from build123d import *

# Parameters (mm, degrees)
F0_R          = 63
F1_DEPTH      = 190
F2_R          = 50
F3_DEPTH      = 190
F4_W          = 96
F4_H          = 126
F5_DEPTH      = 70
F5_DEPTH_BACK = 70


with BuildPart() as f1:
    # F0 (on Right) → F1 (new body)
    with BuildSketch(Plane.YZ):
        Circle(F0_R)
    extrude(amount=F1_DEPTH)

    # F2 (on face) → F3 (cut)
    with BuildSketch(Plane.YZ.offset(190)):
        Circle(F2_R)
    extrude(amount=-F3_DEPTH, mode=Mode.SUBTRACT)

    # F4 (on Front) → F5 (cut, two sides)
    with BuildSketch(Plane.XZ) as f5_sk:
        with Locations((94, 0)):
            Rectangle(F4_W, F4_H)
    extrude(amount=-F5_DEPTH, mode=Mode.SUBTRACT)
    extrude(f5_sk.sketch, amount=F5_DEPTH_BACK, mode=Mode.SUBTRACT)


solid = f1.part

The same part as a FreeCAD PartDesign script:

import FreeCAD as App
import Part
import Sketcher
Q = App.Units.Quantity


def add_polygon(sketch, points):
    """Adds a closed chain of lines whose ends are joined by coincident constraints."""
    first, n = sketch.GeometryCount, len(points)
    for a, b in zip(points, points[1:] + points[:1]):
        sketch.addGeometry(Part.LineSegment(App.Vector(*a, 0), App.Vector(*b, 0)), False)
    for i in range(n):
        sketch.addConstraint(Sketcher.Constraint("Coincident", first + i, 2, first + (i + 1) % n, 1))

doc = App.newDocument("Part")
body = doc.addObject("PartDesign::Body", "Body")
body.AllowCompound = True

sketch1 = doc.addObject("Sketcher::SketchObject", "Sketch")
body.addObject(sketch1)
sketch1.AttachmentSupport = (doc.YZ_Plane, [""])
sketch1.MapMode = "FlatFace"
sketch1.addGeometry(Part.Circle(App.Vector(0, 0, 0), App.Vector(0, 0, 1), 63), False)
sketch1.addConstraint(Sketcher.Constraint("Coincident", 0, 3, -1, 1))
sketch1.addConstraint(Sketcher.Constraint("Diameter", 0, Q("126 mm")))
pad1 = doc.addObject("PartDesign::Pad", "Pad")
body.addObject(pad1)
pad1.Profile = sketch1
pad1.Length = 190

sketch2 = doc.addObject("Sketcher::SketchObject", "Sketch001")
body.addObject(sketch2)
sketch2.AttachmentSupport = (doc.YZ_Plane, [""])
sketch2.MapMode = "FlatFace"
sketch2.AttachmentOffset = App.Placement(App.Vector(0, 0, 190), App.Rotation())
sketch2.addGeometry(Part.Circle(App.Vector(0, 0, 0), App.Vector(0, 0, 1), 50), False)
sketch2.addConstraint(Sketcher.Constraint("Coincident", 0, 3, -1, 1))
sketch2.addConstraint(Sketcher.Constraint("Diameter", 0, Q("100 mm")))
pocket1 = doc.addObject("PartDesign::Pocket", "Pocket")
body.addObject(pocket1)
pocket1.Profile = sketch2
pocket1.Length = 190

sketch3 = doc.addObject("Sketcher::SketchObject", "Sketch002")
body.addObject(sketch3)
sketch3.AttachmentSupport = (doc.XZ_Plane, [""])
sketch3.MapMode = "FlatFace"
add_polygon(sketch3, [(46, 63), (46, -63), (142, -63), (142, 63)])
sketch3.addConstraint(Sketcher.Constraint("Vertical", 0))
sketch3.addConstraint(Sketcher.Constraint("Horizontal", 1))
sketch3.addConstraint(Sketcher.Constraint("Vertical", 2))
sketch3.addConstraint(Sketcher.Constraint("Horizontal", 3))
sketch3.addConstraint(Sketcher.Constraint("DistanceX", 1, 1, 1, 2, Q("96 mm")))
sketch3.addConstraint(Sketcher.Constraint("DistanceY", 0, 2, 0, 1, Q("126 mm")))
sketch3.addConstraint(Sketcher.Constraint("DistanceX", -1, 1, 0, 2, Q("46 mm")))
sketch3.addConstraint(Sketcher.Constraint("DistanceY", 0, 2, -1, 1, Q("63 mm")))
pocket2 = doc.addObject("PartDesign::Pocket", "Pocket001")
body.addObject(pocket2)
pocket2.Profile = sketch3
pocket2.Type = "ThroughAll"
pocket2.Midplane = True

doc.recompute()
